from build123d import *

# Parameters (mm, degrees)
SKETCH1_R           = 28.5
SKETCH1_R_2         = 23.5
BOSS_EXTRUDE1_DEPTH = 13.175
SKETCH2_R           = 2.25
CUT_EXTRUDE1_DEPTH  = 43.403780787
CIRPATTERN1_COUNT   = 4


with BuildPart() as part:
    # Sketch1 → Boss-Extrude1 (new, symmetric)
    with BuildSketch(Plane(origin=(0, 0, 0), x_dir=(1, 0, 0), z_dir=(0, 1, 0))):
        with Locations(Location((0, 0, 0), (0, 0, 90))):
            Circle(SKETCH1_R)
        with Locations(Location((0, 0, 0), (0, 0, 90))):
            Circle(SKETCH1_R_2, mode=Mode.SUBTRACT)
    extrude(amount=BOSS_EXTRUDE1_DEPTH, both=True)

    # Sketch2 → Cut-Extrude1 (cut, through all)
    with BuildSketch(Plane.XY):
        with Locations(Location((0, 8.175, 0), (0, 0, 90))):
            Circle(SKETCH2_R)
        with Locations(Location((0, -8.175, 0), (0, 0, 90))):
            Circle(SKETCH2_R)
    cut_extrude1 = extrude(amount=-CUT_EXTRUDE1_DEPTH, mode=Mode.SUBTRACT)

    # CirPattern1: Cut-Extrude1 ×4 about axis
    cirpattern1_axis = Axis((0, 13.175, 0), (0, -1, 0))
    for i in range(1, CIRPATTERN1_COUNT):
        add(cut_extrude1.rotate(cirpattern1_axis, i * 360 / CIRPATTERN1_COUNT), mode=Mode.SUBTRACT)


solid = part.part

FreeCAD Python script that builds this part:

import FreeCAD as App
import Part
import Sketcher

doc = App.newDocument("Part")
body = doc.addObject("PartDesign::Body", "Body")

# Sketch on XZ plane
sketch1 = body.newObject("Sketcher::SketchObject", "Sketch")
sketch1.AttachmentSupport = (doc.getObject("XZ_Plane"), [""])
sketch1.MapMode = "FlatFace"
sketch1.addGeometry([
    Part.Circle(App.Vector(0, 0, 0), App.Vector(0, 0, 1), 28.5),
    Part.Circle(App.Vector(0, 0, 0), App.Vector(0, 0, 1), 23.5),
], False)
sketch1.addConstraint([
    Sketcher.Constraint("Coincident", 0, 3, -1, 1),
    Sketcher.Constraint("Coincident", 1, 3, -1, 1),
    Sketcher.Constraint("Diameter", 0, 57.0),
    Sketcher.Constraint("Diameter", 1, 47.0),
])
pad1 = body.newObject("PartDesign::Pad", "Pad")
pad1.Profile = sketch1
pad1.Length = 26.35
pad1.Midplane = True

# Sketch on XY plane
sketch2 = body.newObject("Sketcher::SketchObject", "Sketch001")
sketch2.AttachmentSupport = (doc.getObject("XY_Plane"), [""])
sketch2.MapMode = "FlatFace"
sketch2.addGeometry([
    Part.Circle(App.Vector(0, 8.175, 0), App.Vector(0, 0, 1), 2.25),
    Part.Circle(App.Vector(0, -8.175, 0), App.Vector(0, 0, 1), 2.25),
], False)
sketch2.addConstraint([
    Sketcher.Constraint("Equal", 0, 1),
    Sketcher.Constraint("Symmetric", 0, 3, 1, 3, -1, 1),
    Sketcher.Constraint("PointOnObject", 0, 3, -2),
    Sketcher.Constraint("Diameter", 0, 4.5),
    Sketcher.Constraint("DistanceY", 1, 3, 0, 3, 16.35),
])
pocket1 = body.newObject("PartDesign::Pocket", "Pocket")
pocket1.Profile = sketch2
pocket1.Type = "ThroughAll"
doc.recompute()

polarpattern = body.newObject("PartDesign::PolarPattern", "PolarPattern")
polarpattern.Originals = [pocket1]
polarpattern.Axis = (doc.getObject("Y_Axis"), [""])
polarpattern.Angle = 360
polarpattern.Occurrences = 4
body.Tip = polarpattern

doc.recompute()
